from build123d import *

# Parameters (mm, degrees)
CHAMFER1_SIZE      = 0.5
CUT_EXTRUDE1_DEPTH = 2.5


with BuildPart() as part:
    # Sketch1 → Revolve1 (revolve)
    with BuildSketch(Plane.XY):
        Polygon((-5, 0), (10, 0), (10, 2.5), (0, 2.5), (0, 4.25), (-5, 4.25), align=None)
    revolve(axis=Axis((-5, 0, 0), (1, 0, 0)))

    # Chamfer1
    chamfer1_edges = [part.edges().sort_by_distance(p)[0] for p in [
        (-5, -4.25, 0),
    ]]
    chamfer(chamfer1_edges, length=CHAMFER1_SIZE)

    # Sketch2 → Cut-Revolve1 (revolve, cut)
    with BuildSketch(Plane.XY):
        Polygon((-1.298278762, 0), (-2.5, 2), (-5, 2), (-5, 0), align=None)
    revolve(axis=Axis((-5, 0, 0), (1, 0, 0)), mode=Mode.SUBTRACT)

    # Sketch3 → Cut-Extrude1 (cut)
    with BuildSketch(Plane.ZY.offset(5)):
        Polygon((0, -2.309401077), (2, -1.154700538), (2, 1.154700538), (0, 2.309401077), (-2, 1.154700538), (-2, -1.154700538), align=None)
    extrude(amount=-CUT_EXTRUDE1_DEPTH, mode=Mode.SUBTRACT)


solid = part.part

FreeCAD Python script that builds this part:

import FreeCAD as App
import Part
import Sketcher
Q = App.Units.Quantity


def edges_at(feature, points):
    """Names of the edges that pass closest to the given points."""
    edges = feature.Shape.Edges
    near = lambda p: min(range(len(edges)), key=lambda i: edges[i].distToShape(Part.Vertex(*p))[0])
    return sorted({f"Edge{near(p) + 1}" for p in points})

doc = App.newDocument("Part")
body = doc.addObject("PartDesign::Body", "Body")

sketch1 = body.newObject("Sketcher::SketchObject", "Sketch")
sketch1.AttachmentSupport = (doc.getObject("XY_Plane"), [""])
sketch1.MapMode = "FlatFace"
sketch1.addGeometry([
    Part.LineSegment(App.Vector(-5, 0, 0), App.Vector(10, 0, 0)),
    Part.LineSegment(App.Vector(10, 0, 0), App.Vector(10, 2.5, 0)),
    Part.LineSegment(App.Vector(10, 2.5, 0), App.Vector(0, 2.5, 0)),
    Part.LineSegment(App.Vector(0, 2.5, 0), App.Vector(0, 4.2, 0)),
    Part.LineSegment(App.Vector(0, 4.2, 0), App.Vector(-5, 4.2, 0)),
    Part.LineSegment(App.Vector(-5, 4.2, 0), App.Vector(-5, 0, 0)),
], False)
sketch1.addConstraint([
    Sketcher.Constraint("Coincident", 0, 2, 1, 1),
    Sketcher.Constraint("Coincident", 1, 2, 2, 1),
    Sketcher.Constraint("Coincident", 2, 2, 3, 1),
    Sketcher.Constraint("Coincident", 3, 2, 4, 1),
    Sketcher.Constraint("Coincident", 4, 2, 5, 1),
    Sketcher.Constraint("Coincident", 5, 2, 0, 1),
    Sketcher.Constraint("Horizontal", 0),
    Sketcher.Constraint("Vertical", 1),
    Sketcher.Constraint("Horizontal", 2),
    Sketcher.Constraint("Vertical", 3),
    Sketcher.Constraint("Horizontal", 4),
    Sketcher.Constraint("Vertical", 5),
    Sketcher.Constraint("PointOnObject", 0, 2, -1),
    Sketcher.Constraint("PointOnObject", 2, 2, -2),
    Sketcher.Constraint("DistanceX", 0, 1, 0, 2, Q("15 mm")),
    Sketcher.Constraint("DistanceX", 2, 2, 2, 1, Q("10 mm")),
    Sketcher.Constraint("DistanceY", 1, 1, 1, 2, Q("2.5 mm")),
    Sketcher.Constraint("DistanceY", 3, 1, 3, 2, Q("1.75 mm")),
])
revolution = body.newObject("PartDesign::Revolution", "Revolution")
revolution.Profile = sketch1
revolution.ReferenceAxis = (sketch1, ["H_Axis"])
revolution.Angle = 360
doc.recompute()

chamfer = body.newObject("PartDesign::Chamfer", "Chamfer")
chamfer.Base = (revolution, edges_at(revolution, [(-5, -4.25, 0)]))
chamfer.Size = 0.5

sketch2 = body.newObject("Sketcher::SketchObject", "Sketch001")
sketch2.AttachmentSupport = (doc.getObject("XY_Plane"), [""])
sketch2.MapMode = "FlatFace"
sketch2.addGeometry([
    Part.LineSegment(App.Vector(-1.3, 0, 0), App.Vector(-2.5, 2, 0)),
    Part.LineSegment(App.Vector(-2.5, 2, 0), App.Vector(-5, 2, 0)),
    Part.LineSegment(App.Vector(-5, 2, 0), App.Vector(-5, 0, 0)),
    Part.LineSegment(App.Vector(-5, 0, 0), App.Vector(-1.3, 0, 0)),
], False)
sketch2.addConstraint([
    Sketcher.Constraint("Coincident", 0, 2, 1, 1),
    Sketcher.Constraint("Coincident", 1, 2, 2, 1),
    Sketcher.Constraint("Coincident", 2, 2, 3, 1),
    Sketcher.Constraint("Coincident", 3, 2, 0, 1),
    Sketcher.Constraint("Horizontal", 1),
    Sketcher.Constraint("Vertical", 2),
    Sketcher.Constraint("Horizontal", 3),
    Sketcher.Constraint("PointOnObject", 2, 2, -1),
    Sketcher.Constraint("DistanceY", 2, 2, 2, 1, Q("2 mm")),
    Sketcher.Constraint("Angle", 0, Q("121 deg")),
    Sketcher.Constraint("DistanceX", 1, 2, 1, 1, Q("2.5 mm")),
    Sketcher.Constraint("DistanceX", 1, 2, -1, 1, Q("5 mm")),
])
groove = body.newObject("PartDesign::Groove", "Groove")
groove.Profile = sketch2
groove.ReferenceAxis = (sketch2, ["H_Axis"])
groove.Angle = 360

sketch3 = body.newObject("Sketcher::SketchObject", "Sketch002")
sketch3.AttachmentSupport = (doc.getObject("YZ_Plane"), [""])
sketch3.MapMode = "FlatFace"
sketch3.AttachmentOffset = App.Placement(App.Vector(0, 0, -5), App.Rotation())
sketch3.addGeometry([
    Part.LineSegment(App.Vector(-2.3, 0, 0), App.Vector(-1.2, 2, 0)),
    Part.LineSegment(App.Vector(-1.2, 2, 0), App.Vector(1.2, 2, 0)),
    Part.LineSegment(App.Vector(1.2, 2, 0), App.Vector(2.3, 0, 0)),
    Part.LineSegment(App.Vector(2.3, 0, 0), App.Vector(1.2, -2, 0)),
    Part.LineSegment(App.Vector(1.2, -2, 0), App.Vector(-1.2, -2, 0)),
    Part.LineSegment(App.Vector(-1.2, -2, 0), App.Vector(-2.3, 0, 0)),
], False)
sketch3.addConstraint([
    Sketcher.Constraint("Coincident", 0, 2, 1, 1),
    Sketcher.Constraint("Coincident", 1, 2, 2, 1),
    Sketcher.Constraint("Coincident", 2, 2, 3, 1),
    Sketcher.Constraint("Coincident", 3, 2, 4, 1),
    Sketcher.Constraint("Coincident", 4, 2, 5, 1),
    Sketcher.Constraint("Coincident", 5, 2, 0, 1),
    Sketcher.Constraint("Horizontal", 1),
    Sketcher.Constraint("Horizontal", 4),
    Sketcher.Constraint("Symmetric", 0, 2, 3, 2, -1, 1),
    Sketcher.Constraint("Symmetric", 2, 2, 5, 2, -1, 1),
    Sketcher.Constraint("PointOnObject", 2, 2, -1),
    Sketcher.Constraint("Parallel", 2, 5),
    Sketcher.Constraint("Vertical", 1, 2, 3, 2),
    Sketcher.Constraint("Angle", 0, Q("60 deg")),
    Sketcher.Constraint("DistanceY", -1, 1, 0, 2, Q("2 mm")),
    Sketcher.Constraint("DistanceX", 1, 1, 1, 2, Q("2.309401 mm")),
])
pocket1 = body.newObject("PartDesign::Pocket", "Pocket")
pocket1.Profile = sketch3
pocket1.Length = 2.5
pocket1.Reversed = True

doc.recompute()
